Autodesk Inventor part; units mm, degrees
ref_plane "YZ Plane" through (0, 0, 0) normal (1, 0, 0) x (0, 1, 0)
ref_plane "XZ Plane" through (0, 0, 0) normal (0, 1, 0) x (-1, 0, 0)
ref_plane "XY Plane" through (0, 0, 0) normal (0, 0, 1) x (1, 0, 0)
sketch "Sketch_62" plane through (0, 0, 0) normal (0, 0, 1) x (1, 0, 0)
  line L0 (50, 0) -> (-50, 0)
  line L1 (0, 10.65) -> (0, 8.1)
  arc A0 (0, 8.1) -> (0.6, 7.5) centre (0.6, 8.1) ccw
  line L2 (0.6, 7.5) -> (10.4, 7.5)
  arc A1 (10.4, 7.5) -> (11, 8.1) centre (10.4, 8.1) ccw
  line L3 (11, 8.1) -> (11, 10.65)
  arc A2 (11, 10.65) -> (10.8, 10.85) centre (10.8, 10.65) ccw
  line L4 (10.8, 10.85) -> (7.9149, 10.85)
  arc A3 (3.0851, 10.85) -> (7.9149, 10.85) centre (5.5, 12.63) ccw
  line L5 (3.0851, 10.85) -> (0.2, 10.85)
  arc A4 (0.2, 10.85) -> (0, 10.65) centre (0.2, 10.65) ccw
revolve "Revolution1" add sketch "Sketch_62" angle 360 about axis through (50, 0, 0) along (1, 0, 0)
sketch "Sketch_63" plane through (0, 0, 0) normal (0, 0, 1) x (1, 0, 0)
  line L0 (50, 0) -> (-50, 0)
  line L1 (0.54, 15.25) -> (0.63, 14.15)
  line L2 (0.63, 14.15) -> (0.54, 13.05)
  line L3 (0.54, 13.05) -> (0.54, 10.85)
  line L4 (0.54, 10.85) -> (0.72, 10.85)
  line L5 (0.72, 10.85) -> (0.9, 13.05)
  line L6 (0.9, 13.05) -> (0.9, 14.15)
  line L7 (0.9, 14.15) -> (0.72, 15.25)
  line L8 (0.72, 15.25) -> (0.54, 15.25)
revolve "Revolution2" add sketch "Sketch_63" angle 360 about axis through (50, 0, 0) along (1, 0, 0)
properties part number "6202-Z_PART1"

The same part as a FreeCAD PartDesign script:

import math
import FreeCAD as App
import Part
import Sketcher

V = App.Vector
Q = App.Units.Quantity

doc = App.newDocument("Part")
body = doc.addObject("PartDesign::Body", "Body")

# Sketch on XY plane
sketch1 = body.newObject("Sketcher::SketchObject", "Sketch")
sketch1.AttachmentSupport = (doc.getObject("XY_Plane"), [""])
sketch1.MapMode = "FlatFace"
sketch1.addGeometry(Part.ArcOfCircle(Part.Circle(V(0.2, 10.65, 0), V(0, 0, 1), 0.2), math.radians(90), math.radians(180)), False)
sketch1.addGeometry(Part.LineSegment(V(0, 10.65, 0), V(0, 8.1, 0)), False)
sketch1.addGeometry(Part.ArcOfCircle(Part.Circle(V(0.6, 8.1, 0), V(0, 0, 1), 0.6), math.radians(180), math.radians(270)), False)
sketch1.addGeometry(Part.LineSegment(V(0.6, 7.5, 0), V(10.4, 7.5, 0)), False)
sketch1.addGeometry(Part.ArcOfCircle(Part.Circle(V(10.4, 8.1, 0), V(0, 0, 1), 0.6), math.radians(-90), math.radians(0)), False)
sketch1.addGeometry(Part.LineSegment(V(11, 8.1, 0), V(11, 10.65, 0)), False)
sketch1.addGeometry(Part.ArcOfCircle(Part.Circle(V(10.8, 10.65, 0), V(0, 0, 1), 0.2), math.radians(0), math.radians(90)), False)
sketch1.addGeometry(Part.LineSegment(V(10.8, 10.85, 0), V(7.91, 10.85, 0)), False)
sketch1.addGeometry(Part.ArcOfCircle(Part.Circle(V(5.5, 12.63, 0), V(0, 0, 1), 3), math.radians(-144), math.radians(-36)), False)
sketch1.addGeometry(Part.LineSegment(V(3.09, 10.85, 0), V(0.2, 10.85, 0)), False)
sketch1.addConstraint(Sketcher.Constraint("Tangent", 0, 2, 1, 1))
sketch1.addConstraint(Sketcher.Constraint("Tangent", 1, 2, 2, 1))
sketch1.addConstraint(Sketcher.Constraint("Tangent", 2, 2, 3, 1))
sketch1.addConstraint(Sketcher.Constraint("Tangent", 3, 2, 4, 1))
sketch1.addConstraint(Sketcher.Constraint("Tangent", 4, 2, 5, 1))
sketch1.addConstraint(Sketcher.Constraint("Tangent", 5, 2, 6, 1))
sketch1.addConstraint(Sketcher.Constraint("Tangent", 6, 2, 7, 1))
sketch1.addConstraint(Sketcher.Constraint("Coincident", 7, 2, 8, 2))
sketch1.addConstraint(Sketcher.Constraint("Coincident", 8, 1, 9, 1))
sketch1.addConstraint(Sketcher.Constraint("Tangent", 9, 2, 0, 1))
sketch1.addConstraint(Sketcher.Constraint("Vertical", 1))
sketch1.addConstraint(Sketcher.Constraint("Horizontal", 3))
sketch1.addConstraint(Sketcher.Constraint("Vertical", 5))
sketch1.addConstraint(Sketcher.Constraint("Horizontal", 7))
sketch1.addConstraint(Sketcher.Constraint("Horizontal", 9))
sketch1.addConstraint(Sketcher.Constraint("Equal", 2, 4))
sketch1.addConstraint(Sketcher.Constraint("Equal", 0, 6))
sketch1.addConstraint(Sketcher.Constraint("PointOnObject", 0, 2, -2))
sketch1.addConstraint(Sketcher.Constraint("Horizontal", 0, 3, 6, 3))
sketch1.addConstraint(Sketcher.Constraint("Equal", 7, 9))
sketch1.addConstraint(Sketcher.Constraint("Radius", 8, Q("3 mm")))
sketch1.addConstraint(Sketcher.Constraint("Radius", 0, Q("0.2 mm")))
sketch1.addConstraint(Sketcher.Constraint("Radius", 2, Q("0.6 mm")))
sketch1.addConstraint(Sketcher.Constraint("DistanceX", 3, 1, 3, 2, Q("9.8 mm")))
sketch1.addConstraint(Sketcher.Constraint("DistanceY", 1, 2, 1, 1, Q("2.55 mm")))
sketch1.addConstraint(Sketcher.Constraint("DistanceY", -1, 1, 2, 3, Q("8.1 mm")))
sketch1.addConstraint(Sketcher.Constraint("DistanceX", 7, 2, 7, 1, Q("2.885 mm")))
revolution = body.newObject("PartDesign::Revolution", "Revolution")
revolution.Profile = sketch1
revolution.ReferenceAxis = (sketch1, ["H_Axis"])
revolution.Angle = 360

# Sketch on XY plane
sketch2 = body.newObject("Sketcher::SketchObject", "Sketch001")
sketch2.AttachmentSupport = (doc.getObject("XY_Plane"), [""])
sketch2.MapMode = "FlatFace"
sketch2.addGeometry(Part.LineSegment(V(0.72, 15.25, 0), V(0.54, 15.25, 0)), False)
sketch2.addGeometry(Part.LineSegment(V(0.54, 15.25, 0), V(0.63, 14.15, 0)), False)
sketch2.addGeometry(Part.LineSegment(V(0.63, 14.15, 0), V(0.54, 13.05, 0)), False)
sketch2.addGeometry(Part.LineSegment(V(0.54, 13.05, 0), V(0.54, 10.85, 0)), False)
sketch2.addGeometry(Part.LineSegment(V(0.54, 10.85, 0), V(0.72, 10.85, 0)), False)
sketch2.addGeometry(Part.LineSegment(V(0.72, 10.85, 0), V(0.9, 13.05, 0)), False)
sketch2.addGeometry(Part.LineSegment(V(0.9, 13.05, 0), V(0.9, 14.15, 0)), False)
sketch2.addGeometry(Part.LineSegment(V(0.9, 14.15, 0), V(0.72, 15.25, 0)), False)
sketch2.addConstraint(Sketcher.Constraint("Coincident", 0, 2, 1, 1))
sketch2.addConstraint(Sketcher.Constraint("Coincident", 1, 2, 2, 1))
sketch2.addConstraint(Sketcher.Constraint("Coincident", 2, 2, 3, 1))
sketch2.addConstraint(Sketcher.Constraint("Coincident", 3, 2, 4, 1))
sketch2.addConstraint(Sketcher.Constraint("Coincident", 4, 2, 5, 1))
sketch2.addConstraint(Sketcher.Constraint("Coincident", 5, 2, 6, 1))
sketch2.addConstraint(Sketcher.Constraint("Coincident", 6, 2, 7, 1))
sketch2.addConstraint(Sketcher.Constraint("Coincident", 7, 2, 0, 1))
sketch2.addConstraint(Sketcher.Constraint("Horizontal", 0))
sketch2.addConstraint(Sketcher.Constraint("Vertical", 3))
sketch2.addConstraint(Sketcher.Constraint("Horizontal", 4))
sketch2.addConstraint(Sketcher.Constraint("Vertical", 6))
sketch2.addConstraint(Sketcher.Constraint("Parallel", 2, 5))
sketch2.addConstraint(Sketcher.Constraint("Horizontal", 2, 2, 5, 2))
sketch2.addConstraint(Sketcher.Constraint("Horizontal", 1, 2, 6, 2))
sketch2.addConstraint(Sketcher.Constraint("Vertical", 0, 2, 2, 2))
sketch2.addConstraint(Sketcher.Constraint("Vertical", 4, 2, 7, 2))
sketch2.addConstraint(Sketcher.Constraint("Equal", 1, 2))
sketch2.addConstraint(Sketcher.Constraint("DistanceY", 3, 2, 3, 1, Q("2.2 mm")))
sketch2.addConstraint(Sketcher.Constraint("DistanceY", 6, 1, 6, 2, Q("1.1 mm")))
sketch2.addConstraint(Sketcher.Constraint("DistanceX", 0, 2, 0, 1, Q("0.18 mm")))
sketch2.addConstraint(Sketcher.Constraint("DistanceX", -1, 1, 5, 2, Q("0.9 mm")))
sketch2.addConstraint(Sketcher.Constraint("DistanceX", -1, 1, 0, 2, Q("0.54 mm")))
sketch2.addConstraint(Sketcher.Constraint("DistanceY", -1, 1, 0, 2, Q("15.25 mm")))
revolution2 = body.newObject("PartDesign::Revolution", "Revolution001")
revolution2.Profile = sketch2
revolution2.ReferenceAxis = (sketch2, ["H_Axis"])
revolution2.Angle = 360

doc.recompute()
